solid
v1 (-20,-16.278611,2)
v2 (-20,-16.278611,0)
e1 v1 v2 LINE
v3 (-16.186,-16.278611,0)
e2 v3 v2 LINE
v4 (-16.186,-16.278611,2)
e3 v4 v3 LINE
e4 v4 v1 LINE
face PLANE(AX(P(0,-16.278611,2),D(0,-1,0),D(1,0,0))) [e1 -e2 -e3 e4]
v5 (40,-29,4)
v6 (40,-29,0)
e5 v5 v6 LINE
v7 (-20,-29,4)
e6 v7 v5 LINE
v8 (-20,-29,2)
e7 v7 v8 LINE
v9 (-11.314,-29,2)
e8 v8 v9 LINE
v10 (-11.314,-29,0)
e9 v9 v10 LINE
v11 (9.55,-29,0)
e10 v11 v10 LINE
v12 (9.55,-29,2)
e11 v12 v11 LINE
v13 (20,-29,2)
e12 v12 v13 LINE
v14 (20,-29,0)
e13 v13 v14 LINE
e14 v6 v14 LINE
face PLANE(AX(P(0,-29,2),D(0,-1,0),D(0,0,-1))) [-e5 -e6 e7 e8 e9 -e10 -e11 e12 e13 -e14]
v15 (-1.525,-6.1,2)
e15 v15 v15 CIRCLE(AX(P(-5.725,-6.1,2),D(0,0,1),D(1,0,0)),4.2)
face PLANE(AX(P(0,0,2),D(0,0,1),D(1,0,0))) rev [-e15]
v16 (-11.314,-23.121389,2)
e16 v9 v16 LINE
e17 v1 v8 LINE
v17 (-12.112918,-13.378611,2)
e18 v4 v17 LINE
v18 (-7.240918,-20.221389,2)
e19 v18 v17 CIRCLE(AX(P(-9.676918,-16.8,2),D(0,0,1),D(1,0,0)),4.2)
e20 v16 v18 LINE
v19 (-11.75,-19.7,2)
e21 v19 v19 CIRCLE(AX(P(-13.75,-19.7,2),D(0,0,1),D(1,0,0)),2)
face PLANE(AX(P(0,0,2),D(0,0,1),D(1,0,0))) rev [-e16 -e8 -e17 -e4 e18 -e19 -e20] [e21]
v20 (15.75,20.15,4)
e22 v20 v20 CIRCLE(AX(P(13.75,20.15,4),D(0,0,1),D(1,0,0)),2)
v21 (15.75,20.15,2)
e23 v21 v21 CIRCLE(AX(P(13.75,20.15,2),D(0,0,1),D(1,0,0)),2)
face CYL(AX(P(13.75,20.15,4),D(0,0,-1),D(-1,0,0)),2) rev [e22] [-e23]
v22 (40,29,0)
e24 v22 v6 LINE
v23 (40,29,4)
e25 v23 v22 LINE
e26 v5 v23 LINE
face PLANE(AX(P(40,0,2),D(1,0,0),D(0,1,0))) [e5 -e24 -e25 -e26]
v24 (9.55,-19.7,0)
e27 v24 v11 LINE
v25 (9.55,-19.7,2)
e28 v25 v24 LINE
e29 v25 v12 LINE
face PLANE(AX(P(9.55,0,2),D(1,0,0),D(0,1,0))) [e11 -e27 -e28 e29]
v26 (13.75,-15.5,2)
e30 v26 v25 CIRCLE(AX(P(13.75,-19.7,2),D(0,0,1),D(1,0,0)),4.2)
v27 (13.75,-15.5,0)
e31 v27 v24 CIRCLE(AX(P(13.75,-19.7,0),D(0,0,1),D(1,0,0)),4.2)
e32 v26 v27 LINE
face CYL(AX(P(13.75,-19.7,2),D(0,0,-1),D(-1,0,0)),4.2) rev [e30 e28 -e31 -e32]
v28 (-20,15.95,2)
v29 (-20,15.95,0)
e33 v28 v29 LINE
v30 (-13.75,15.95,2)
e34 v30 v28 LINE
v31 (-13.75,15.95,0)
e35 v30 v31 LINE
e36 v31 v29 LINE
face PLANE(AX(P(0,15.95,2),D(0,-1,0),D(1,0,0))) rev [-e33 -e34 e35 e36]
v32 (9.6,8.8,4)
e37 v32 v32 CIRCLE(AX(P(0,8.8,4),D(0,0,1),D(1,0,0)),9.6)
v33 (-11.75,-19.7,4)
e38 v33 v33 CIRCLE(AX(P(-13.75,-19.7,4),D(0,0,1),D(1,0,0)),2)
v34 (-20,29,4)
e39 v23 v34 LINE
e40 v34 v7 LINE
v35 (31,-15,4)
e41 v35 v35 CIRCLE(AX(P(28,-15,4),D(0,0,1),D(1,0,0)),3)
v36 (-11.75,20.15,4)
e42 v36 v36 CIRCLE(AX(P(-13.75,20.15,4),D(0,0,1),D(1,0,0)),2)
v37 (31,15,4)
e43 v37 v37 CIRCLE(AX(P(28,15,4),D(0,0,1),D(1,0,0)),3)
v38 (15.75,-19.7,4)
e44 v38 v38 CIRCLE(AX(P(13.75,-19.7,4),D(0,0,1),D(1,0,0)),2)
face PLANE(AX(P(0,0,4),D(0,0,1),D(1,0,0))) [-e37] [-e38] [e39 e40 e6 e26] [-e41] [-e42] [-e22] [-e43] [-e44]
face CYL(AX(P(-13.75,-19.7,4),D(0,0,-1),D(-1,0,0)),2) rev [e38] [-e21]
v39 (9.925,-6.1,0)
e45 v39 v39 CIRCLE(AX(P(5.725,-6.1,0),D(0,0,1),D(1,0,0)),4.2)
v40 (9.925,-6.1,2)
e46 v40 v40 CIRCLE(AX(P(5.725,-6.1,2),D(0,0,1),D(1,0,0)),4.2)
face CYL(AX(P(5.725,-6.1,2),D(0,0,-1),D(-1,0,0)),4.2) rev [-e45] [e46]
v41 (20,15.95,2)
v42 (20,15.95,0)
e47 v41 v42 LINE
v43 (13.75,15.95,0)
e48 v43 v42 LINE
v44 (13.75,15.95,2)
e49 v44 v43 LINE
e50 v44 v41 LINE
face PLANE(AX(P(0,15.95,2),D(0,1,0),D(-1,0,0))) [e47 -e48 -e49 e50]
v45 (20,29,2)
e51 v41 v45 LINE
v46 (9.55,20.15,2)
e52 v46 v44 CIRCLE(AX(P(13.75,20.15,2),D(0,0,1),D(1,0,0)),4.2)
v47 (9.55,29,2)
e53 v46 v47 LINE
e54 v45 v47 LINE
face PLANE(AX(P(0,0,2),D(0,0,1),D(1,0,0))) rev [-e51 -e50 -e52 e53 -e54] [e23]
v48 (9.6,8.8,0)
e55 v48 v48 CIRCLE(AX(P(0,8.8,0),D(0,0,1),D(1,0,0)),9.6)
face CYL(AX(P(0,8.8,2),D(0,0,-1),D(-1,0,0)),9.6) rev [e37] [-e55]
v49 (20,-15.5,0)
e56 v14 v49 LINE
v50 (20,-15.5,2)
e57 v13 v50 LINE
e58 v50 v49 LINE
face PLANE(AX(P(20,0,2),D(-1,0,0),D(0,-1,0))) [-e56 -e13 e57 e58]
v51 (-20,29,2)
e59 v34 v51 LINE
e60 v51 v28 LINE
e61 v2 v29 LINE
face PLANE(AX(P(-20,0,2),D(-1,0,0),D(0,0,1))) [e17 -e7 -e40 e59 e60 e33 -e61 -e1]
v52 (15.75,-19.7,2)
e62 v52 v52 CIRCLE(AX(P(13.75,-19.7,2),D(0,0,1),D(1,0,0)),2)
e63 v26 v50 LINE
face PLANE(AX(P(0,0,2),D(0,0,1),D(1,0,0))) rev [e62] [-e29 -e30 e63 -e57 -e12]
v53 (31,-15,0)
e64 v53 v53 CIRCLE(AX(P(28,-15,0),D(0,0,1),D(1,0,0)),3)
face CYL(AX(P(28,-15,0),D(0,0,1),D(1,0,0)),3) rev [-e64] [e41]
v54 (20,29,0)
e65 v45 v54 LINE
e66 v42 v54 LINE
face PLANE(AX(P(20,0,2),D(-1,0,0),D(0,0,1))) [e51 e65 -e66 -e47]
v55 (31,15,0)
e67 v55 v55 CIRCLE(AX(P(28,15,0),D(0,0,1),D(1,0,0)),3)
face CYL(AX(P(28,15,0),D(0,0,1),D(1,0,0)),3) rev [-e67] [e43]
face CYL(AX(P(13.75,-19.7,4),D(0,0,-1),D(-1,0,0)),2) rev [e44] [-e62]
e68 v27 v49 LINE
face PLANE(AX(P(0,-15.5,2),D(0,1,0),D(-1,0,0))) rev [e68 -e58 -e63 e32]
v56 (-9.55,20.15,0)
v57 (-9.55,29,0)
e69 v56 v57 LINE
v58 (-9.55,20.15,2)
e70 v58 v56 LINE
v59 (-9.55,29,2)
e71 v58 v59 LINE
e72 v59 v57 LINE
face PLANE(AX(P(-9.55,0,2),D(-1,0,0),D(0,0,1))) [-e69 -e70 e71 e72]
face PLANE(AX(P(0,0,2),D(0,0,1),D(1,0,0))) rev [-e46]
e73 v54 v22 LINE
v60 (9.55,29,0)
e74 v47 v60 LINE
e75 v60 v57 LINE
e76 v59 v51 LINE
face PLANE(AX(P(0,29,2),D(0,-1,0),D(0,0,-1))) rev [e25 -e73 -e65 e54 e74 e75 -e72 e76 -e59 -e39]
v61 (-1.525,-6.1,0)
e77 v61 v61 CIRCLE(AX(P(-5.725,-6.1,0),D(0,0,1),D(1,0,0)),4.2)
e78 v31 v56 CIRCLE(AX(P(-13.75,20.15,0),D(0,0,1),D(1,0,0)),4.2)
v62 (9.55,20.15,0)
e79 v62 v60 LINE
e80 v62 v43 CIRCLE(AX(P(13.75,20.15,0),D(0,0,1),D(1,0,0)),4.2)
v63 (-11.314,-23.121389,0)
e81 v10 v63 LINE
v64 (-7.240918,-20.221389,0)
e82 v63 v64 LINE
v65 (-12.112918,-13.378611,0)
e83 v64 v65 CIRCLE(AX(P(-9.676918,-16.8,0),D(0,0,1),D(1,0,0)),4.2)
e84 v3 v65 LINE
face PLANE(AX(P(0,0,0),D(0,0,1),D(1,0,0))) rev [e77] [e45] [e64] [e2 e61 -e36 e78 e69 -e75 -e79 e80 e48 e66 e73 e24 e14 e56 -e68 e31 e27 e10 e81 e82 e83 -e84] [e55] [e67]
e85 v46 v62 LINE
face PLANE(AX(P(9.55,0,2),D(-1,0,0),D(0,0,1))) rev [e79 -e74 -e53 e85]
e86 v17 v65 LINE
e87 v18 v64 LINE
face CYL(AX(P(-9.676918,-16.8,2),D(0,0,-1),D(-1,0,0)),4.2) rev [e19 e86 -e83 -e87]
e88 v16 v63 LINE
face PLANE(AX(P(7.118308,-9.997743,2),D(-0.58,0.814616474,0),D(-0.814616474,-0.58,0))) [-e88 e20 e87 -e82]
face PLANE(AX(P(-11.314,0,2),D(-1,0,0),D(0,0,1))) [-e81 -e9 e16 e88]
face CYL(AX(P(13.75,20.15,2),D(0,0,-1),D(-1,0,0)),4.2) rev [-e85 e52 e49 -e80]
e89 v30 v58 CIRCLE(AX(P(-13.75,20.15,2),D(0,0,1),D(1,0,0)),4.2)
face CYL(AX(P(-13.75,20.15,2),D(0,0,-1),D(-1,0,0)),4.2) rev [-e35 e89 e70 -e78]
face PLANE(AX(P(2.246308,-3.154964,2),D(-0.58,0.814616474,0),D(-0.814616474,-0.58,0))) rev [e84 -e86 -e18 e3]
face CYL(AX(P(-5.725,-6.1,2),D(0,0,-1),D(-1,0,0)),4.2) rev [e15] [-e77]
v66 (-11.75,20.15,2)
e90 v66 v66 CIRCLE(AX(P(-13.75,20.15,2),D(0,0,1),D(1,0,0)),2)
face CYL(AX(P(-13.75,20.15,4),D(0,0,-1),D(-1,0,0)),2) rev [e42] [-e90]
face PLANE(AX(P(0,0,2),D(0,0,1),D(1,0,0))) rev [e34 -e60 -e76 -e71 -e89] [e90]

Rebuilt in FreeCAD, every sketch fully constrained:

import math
import FreeCAD as App
import Part
import Sketcher


def add_polygon(sketch, points):
    """Adds a closed chain of lines whose ends are joined by coincident constraints."""
    first, n = sketch.GeometryCount, len(points)
    for a, b in zip(points, points[1:] + points[:1]):
        sketch.addGeometry(Part.LineSegment(App.Vector(*a, 0), App.Vector(*b, 0)), False)
    for i in range(n):
        sketch.addConstraint(Sketcher.Constraint("Coincident", first + i, 2, first + (i + 1) % n, 1))

doc = App.newDocument("Part")
body = doc.addObject("PartDesign::Body", "Body")

# Sketch on XY plane
sketch1 = body.newObject("Sketcher::SketchObject", "Sketch")
sketch1.AttachmentSupport = (doc.getObject("XY_Plane"), [""])
sketch1.MapMode = "FlatFace"
sketch1.addGeometry([
    Part.LineSegment(App.Vector(40, 29, 0), App.Vector(20, 29, 0)),  # 0
    Part.LineSegment(App.Vector(20, 29, 0), App.Vector(20, 15.9, 0)),  # 1
    Part.LineSegment(App.Vector(20, 15.9, 0), App.Vector(13.8, 15.9, 0)),  # 2
    Part.ArcOfCircle(Part.Circle(App.Vector(13.8, 20.1, 0), App.Vector(0, 0, 1), 4.2), math.radians(180), math.radians(270)),  # 3
    Part.LineSegment(App.Vector(9.6, 20.1, 0), App.Vector(9.6, 29, 0)),  # 4
    Part.LineSegment(App.Vector(9.6, 29, 0), App.Vector(-9.6, 29, 0)),  # 5
    Part.LineSegment(App.Vector(-9.6, 29, 0), App.Vector(-9.6, 20.1, 0)),  # 6
    Part.ArcOfCircle(Part.Circle(App.Vector(-13.8, 20.1, 0), App.Vector(0, 0, 1), 4.2), math.radians(-90), math.radians(0)),  # 7
    Part.LineSegment(App.Vector(-13.8, 15.9, 0), App.Vector(-20, 15.9, 0)),  # 8
    Part.LineSegment(App.Vector(-20, 15.9, 0), App.Vector(-20, -16.3, 0)),  # 9
    Part.LineSegment(App.Vector(-20, -16.3, 0), App.Vector(-16.2, -16.3, 0)),  # 10
    Part.LineSegment(App.Vector(-16.2, -16.3, 0), App.Vector(-12.1, -13.4, 0)),  # 11
    Part.ArcOfCircle(Part.Circle(App.Vector(-9.7, -16.8, 0), App.Vector(0, 0, 1), 4.2), math.radians(-55), math.radians(125)),  # 12
    Part.LineSegment(App.Vector(-7.2, -20.2, 0), App.Vector(-11.3, -23.1, 0)),  # 13
    Part.LineSegment(App.Vector(-11.3, -23.1, 0), App.Vector(-11.3, -29, 0)),  # 14
    Part.LineSegment(App.Vector(-11.3, -29, 0), App.Vector(9.6, -29, 0)),  # 15
    Part.LineSegment(App.Vector(9.6, -29, 0), App.Vector(9.6, -19.7, 0)),  # 16
    Part.ArcOfCircle(Part.Circle(App.Vector(13.8, -19.7, 0), App.Vector(0, 0, 1), 4.2), math.radians(90), math.radians(180)),  # 17
    Part.LineSegment(App.Vector(13.8, -15.5, 0), App.Vector(20, -15.5, 0)),  # 18
    Part.LineSegment(App.Vector(20, -15.5, 0), App.Vector(20, -29, 0)),  # 19
    Part.LineSegment(App.Vector(20, -29, 0), App.Vector(40, -29, 0)),  # 20
    Part.LineSegment(App.Vector(40, -29, 0), App.Vector(40, 29, 0)),  # 21
    Part.Circle(App.Vector(-5.7, -6.1, 0), App.Vector(0, 0, 1), 4.2),  # 22
    Part.Circle(App.Vector(5.7, -6.1, 0), App.Vector(0, 0, 1), 4.2),  # 23
    Part.Circle(App.Vector(0, 8.8, 0), App.Vector(0, 0, 1), 9.6),  # 24
], False)
sketch1.addConstraint([
    Sketcher.Constraint("Coincident", 0, 2, 1, 1),
    Sketcher.Constraint("Coincident", 1, 2, 2, 1),
    Sketcher.Constraint("Tangent", 2, 2, 3, 2),
    Sketcher.Constraint("Tangent", 3, 1, 4, 1),
    Sketcher.Constraint("Coincident", 4, 2, 5, 1),
    Sketcher.Constraint("Coincident", 5, 2, 6, 1),
    Sketcher.Constraint("Tangent", 6, 2, 7, 2),
    Sketcher.Constraint("Tangent", 7, 1, 8, 1),
    Sketcher.Constraint("Coincident", 8, 2, 9, 1),
    Sketcher.Constraint("Coincident", 9, 2, 10, 1),
    Sketcher.Constraint("Coincident", 10, 2, 11, 1),
    Sketcher.Constraint("Tangent", 11, 2, 12, 2),
    Sketcher.Constraint("Tangent", 12, 1, 13, 1),
    Sketcher.Constraint("Coincident", 13, 2, 14, 1),
    Sketcher.Constraint("Coincident", 14, 2, 15, 1),
    Sketcher.Constraint("Coincident", 15, 2, 16, 1),
    Sketcher.Constraint("Tangent", 16, 2, 17, 2),
    Sketcher.Constraint("Tangent", 17, 1, 18, 1),
    Sketcher.Constraint("Coincident", 18, 2, 19, 1),
    Sketcher.Constraint("Coincident", 19, 2, 20, 1),
    Sketcher.Constraint("Coincident", 20, 2, 21, 1),
    Sketcher.Constraint("Coincident", 21, 2, 0, 1),
    Sketcher.Constraint("Horizontal", 0),
    Sketcher.Constraint("Vertical", 1),
    Sketcher.Constraint("Horizontal", 2),
    Sketcher.Constraint("Vertical", 4),
    Sketcher.Constraint("Horizontal", 5),
    Sketcher.Constraint("Vertical", 6),
    Sketcher.Constraint("Horizontal", 8),
    Sketcher.Constraint("Vertical", 9),
    Sketcher.Constraint("Horizontal", 10),
    Sketcher.Constraint("Vertical", 14),
    Sketcher.Constraint("Horizontal", 15),
    Sketcher.Constraint("Vertical", 16),
    Sketcher.Constraint("Horizontal", 18),
    Sketcher.Constraint("Vertical", 19),
    Sketcher.Constraint("Horizontal", 20),
    Sketcher.Constraint("Vertical", 21),
    Sketcher.Constraint("Equal", 3, 7),
    Sketcher.Constraint("Equal", 7, 12),
    Sketcher.Constraint("Equal", 12, 17),
    Sketcher.Constraint("Equal", 17, 22),
    Sketcher.Constraint("Equal", 22, 23),
    Sketcher.Constraint("Symmetric", 5, 2, 15, 2, -1, 1),
    Sketcher.Constraint("Symmetric", 3, 3, 7, 3, -2),
    Sketcher.Constraint("Symmetric", 22, 3, 23, 3, -2),
    Sketcher.Constraint("Symmetric", 0, 2, 19, 2, -1),
    Sketcher.Constraint("PointOnObject", 24, 3, -2),
    Sketcher.Constraint("Parallel", 11, 13),
    Sketcher.Constraint("Horizontal", 0, 2, 4, 2),
    Sketcher.Constraint("Equal", 2, 8),
    Sketcher.Constraint("Equal", 11, 13),
    Sketcher.Constraint("Diameter", 22, 8.4),
    Sketcher.Constraint("Diameter", 24, 19.2),
    Sketcher.Constraint("DistanceX", 0, 2, 0, 1, 20.0),
    Sketcher.Constraint("DistanceY", 21, 1, 21, 2, 58.0),
    Sketcher.Constraint("Distance", 11, 5.0),
    Sketcher.Constraint("DistanceX", 5, 2, 5, 1, 19.1),
    Sketcher.Constraint("DistanceY", 16, 1, 16, 2, 9.3),
    Sketcher.Constraint("DistanceX", -1, 1, 0, 2, 20.0),
    Sketcher.Constraint("DistanceY", 1, 2, 1, 1, 13.05),
    Sketcher.Constraint("DistanceY", 12, 3, -1, 1, 16.8),
    Sketcher.Constraint("DistanceY", 22, 3, -1, 1, 6.1),
    Sketcher.Constraint("DistanceY", -1, 1, 24, 3, 8.8),
    Sketcher.Constraint("DistanceY", 10, 2, 11, 2, 2.9),
    Sketcher.Constraint("DistanceX", 10, 1, 10, 2, 3.814),
    Sketcher.Constraint("DistanceX", 22, 3, 23, 3, 11.45),
])
pad1 = body.newObject("PartDesign::Pad", "Pad")
pad1.Profile = sketch1
pad1.Length = 2

# Sketch on XY plane
sketch2 = body.newObject("Sketcher::SketchObject", "Sketch001")
sketch2.AttachmentSupport = (doc.getObject("XY_Plane"), [""])
sketch2.MapMode = "FlatFace"
sketch2.AttachmentOffset = App.Placement(App.Vector(0, 0, 2), App.Rotation())
add_polygon(sketch2, [(-20, 29), (-20, -29), (40, -29), (40, 29)])  # lines 0-3
sketch2.addGeometry(Part.Circle(App.Vector(-13.8, -19.7, 0), App.Vector(0, 0, 1), 2), False)  # 4
sketch2.addGeometry(Part.Circle(App.Vector(13.8, -19.7, 0), App.Vector(0, 0, 1), 2), False)  # 5
sketch2.addGeometry(Part.Circle(App.Vector(-13.8, 20.1, 0), App.Vector(0, 0, 1), 2), False)  # 6
sketch2.addGeometry(Part.Circle(App.Vector(0, 8.8, 0), App.Vector(0, 0, 1), 9.6), False)  # 7
sketch2.addGeometry(Part.Circle(App.Vector(13.8, 20.1, 0), App.Vector(0, 0, 1), 2), False)  # 8
sketch2.addConstraint([
    Sketcher.Constraint("Vertical", 0),
    Sketcher.Constraint("Horizontal", 1),
    Sketcher.Constraint("Vertical", 2),
    Sketcher.Constraint("Horizontal", 3),
    Sketcher.Constraint("Equal", 4, 5),
    Sketcher.Constraint("Equal", 5, 6),
    Sketcher.Constraint("Equal", 6, 8),
    Sketcher.Constraint("Symmetric", 4, 3, 5, 3, -2),
    Sketcher.Constraint("Symmetric", 6, 3, 8, 3, -2),
    Sketcher.Constraint("PointOnObject", 7, 3, -2),
    Sketcher.Constraint("Vertical", 4, 3, 6, 3),
    Sketcher.Constraint("Diameter", 4, 4.0),
    Sketcher.Constraint("Diameter", 7, 19.2),
    Sketcher.Constraint("DistanceX", 1, 1, 1, 2, 60.0),
    Sketcher.Constraint("DistanceY", 0, 2, 0, 1, 58.0),
    Sketcher.Constraint("DistanceX", 0, 2, -1, 1, 20.0),
    Sketcher.Constraint("DistanceY", 0, 2, -1, 1, 29.0),
    Sketcher.Constraint("DistanceY", 4, 3, -1, 1, 19.7),
    Sketcher.Constraint("DistanceY", -1, 1, 7, 3, 8.8),
    Sketcher.Constraint("DistanceX", 4, 3, 5, 3, 27.5),
    Sketcher.Constraint("DistanceY", -1, 1, 6, 3, 20.15),
])
pad2 = body.newObject("PartDesign::Pad", "Pad001")
pad2.Profile = sketch2
pad2.Length = 2

# Sketch on XY plane
sketch3 = body.newObject("Sketcher::SketchObject", "Sketch002")
sketch3.AttachmentSupport = (doc.getObject("XY_Plane"), [""])
sketch3.MapMode = "FlatFace"
sketch3.AttachmentOffset = App.Placement(App.Vector(0, 0, 4), App.Rotation())
sketch3.addGeometry([
    Part.Circle(App.Vector(28, 15, 0), App.Vector(0, 0, 1), 3),
    Part.Circle(App.Vector(28, -15, 0), App.Vector(0, 0, 1), 3),
], False)
sketch3.addConstraint([
    Sketcher.Constraint("Equal", 0, 1),
    Sketcher.Constraint("Symmetric", 0, 3, 1, 3, -1),
    Sketcher.Constraint("Diameter", 0, 6.0),
    Sketcher.Constraint("DistanceX", -1, 1, 0, 3, 28.0),
    Sketcher.Constraint("DistanceY", -1, 1, 0, 3, 15.0),
])
pocket1 = body.newObject("PartDesign::Pocket", "Pocket")
pocket1.Profile = sketch3
pocket1.Length = 4

doc.recompute()
